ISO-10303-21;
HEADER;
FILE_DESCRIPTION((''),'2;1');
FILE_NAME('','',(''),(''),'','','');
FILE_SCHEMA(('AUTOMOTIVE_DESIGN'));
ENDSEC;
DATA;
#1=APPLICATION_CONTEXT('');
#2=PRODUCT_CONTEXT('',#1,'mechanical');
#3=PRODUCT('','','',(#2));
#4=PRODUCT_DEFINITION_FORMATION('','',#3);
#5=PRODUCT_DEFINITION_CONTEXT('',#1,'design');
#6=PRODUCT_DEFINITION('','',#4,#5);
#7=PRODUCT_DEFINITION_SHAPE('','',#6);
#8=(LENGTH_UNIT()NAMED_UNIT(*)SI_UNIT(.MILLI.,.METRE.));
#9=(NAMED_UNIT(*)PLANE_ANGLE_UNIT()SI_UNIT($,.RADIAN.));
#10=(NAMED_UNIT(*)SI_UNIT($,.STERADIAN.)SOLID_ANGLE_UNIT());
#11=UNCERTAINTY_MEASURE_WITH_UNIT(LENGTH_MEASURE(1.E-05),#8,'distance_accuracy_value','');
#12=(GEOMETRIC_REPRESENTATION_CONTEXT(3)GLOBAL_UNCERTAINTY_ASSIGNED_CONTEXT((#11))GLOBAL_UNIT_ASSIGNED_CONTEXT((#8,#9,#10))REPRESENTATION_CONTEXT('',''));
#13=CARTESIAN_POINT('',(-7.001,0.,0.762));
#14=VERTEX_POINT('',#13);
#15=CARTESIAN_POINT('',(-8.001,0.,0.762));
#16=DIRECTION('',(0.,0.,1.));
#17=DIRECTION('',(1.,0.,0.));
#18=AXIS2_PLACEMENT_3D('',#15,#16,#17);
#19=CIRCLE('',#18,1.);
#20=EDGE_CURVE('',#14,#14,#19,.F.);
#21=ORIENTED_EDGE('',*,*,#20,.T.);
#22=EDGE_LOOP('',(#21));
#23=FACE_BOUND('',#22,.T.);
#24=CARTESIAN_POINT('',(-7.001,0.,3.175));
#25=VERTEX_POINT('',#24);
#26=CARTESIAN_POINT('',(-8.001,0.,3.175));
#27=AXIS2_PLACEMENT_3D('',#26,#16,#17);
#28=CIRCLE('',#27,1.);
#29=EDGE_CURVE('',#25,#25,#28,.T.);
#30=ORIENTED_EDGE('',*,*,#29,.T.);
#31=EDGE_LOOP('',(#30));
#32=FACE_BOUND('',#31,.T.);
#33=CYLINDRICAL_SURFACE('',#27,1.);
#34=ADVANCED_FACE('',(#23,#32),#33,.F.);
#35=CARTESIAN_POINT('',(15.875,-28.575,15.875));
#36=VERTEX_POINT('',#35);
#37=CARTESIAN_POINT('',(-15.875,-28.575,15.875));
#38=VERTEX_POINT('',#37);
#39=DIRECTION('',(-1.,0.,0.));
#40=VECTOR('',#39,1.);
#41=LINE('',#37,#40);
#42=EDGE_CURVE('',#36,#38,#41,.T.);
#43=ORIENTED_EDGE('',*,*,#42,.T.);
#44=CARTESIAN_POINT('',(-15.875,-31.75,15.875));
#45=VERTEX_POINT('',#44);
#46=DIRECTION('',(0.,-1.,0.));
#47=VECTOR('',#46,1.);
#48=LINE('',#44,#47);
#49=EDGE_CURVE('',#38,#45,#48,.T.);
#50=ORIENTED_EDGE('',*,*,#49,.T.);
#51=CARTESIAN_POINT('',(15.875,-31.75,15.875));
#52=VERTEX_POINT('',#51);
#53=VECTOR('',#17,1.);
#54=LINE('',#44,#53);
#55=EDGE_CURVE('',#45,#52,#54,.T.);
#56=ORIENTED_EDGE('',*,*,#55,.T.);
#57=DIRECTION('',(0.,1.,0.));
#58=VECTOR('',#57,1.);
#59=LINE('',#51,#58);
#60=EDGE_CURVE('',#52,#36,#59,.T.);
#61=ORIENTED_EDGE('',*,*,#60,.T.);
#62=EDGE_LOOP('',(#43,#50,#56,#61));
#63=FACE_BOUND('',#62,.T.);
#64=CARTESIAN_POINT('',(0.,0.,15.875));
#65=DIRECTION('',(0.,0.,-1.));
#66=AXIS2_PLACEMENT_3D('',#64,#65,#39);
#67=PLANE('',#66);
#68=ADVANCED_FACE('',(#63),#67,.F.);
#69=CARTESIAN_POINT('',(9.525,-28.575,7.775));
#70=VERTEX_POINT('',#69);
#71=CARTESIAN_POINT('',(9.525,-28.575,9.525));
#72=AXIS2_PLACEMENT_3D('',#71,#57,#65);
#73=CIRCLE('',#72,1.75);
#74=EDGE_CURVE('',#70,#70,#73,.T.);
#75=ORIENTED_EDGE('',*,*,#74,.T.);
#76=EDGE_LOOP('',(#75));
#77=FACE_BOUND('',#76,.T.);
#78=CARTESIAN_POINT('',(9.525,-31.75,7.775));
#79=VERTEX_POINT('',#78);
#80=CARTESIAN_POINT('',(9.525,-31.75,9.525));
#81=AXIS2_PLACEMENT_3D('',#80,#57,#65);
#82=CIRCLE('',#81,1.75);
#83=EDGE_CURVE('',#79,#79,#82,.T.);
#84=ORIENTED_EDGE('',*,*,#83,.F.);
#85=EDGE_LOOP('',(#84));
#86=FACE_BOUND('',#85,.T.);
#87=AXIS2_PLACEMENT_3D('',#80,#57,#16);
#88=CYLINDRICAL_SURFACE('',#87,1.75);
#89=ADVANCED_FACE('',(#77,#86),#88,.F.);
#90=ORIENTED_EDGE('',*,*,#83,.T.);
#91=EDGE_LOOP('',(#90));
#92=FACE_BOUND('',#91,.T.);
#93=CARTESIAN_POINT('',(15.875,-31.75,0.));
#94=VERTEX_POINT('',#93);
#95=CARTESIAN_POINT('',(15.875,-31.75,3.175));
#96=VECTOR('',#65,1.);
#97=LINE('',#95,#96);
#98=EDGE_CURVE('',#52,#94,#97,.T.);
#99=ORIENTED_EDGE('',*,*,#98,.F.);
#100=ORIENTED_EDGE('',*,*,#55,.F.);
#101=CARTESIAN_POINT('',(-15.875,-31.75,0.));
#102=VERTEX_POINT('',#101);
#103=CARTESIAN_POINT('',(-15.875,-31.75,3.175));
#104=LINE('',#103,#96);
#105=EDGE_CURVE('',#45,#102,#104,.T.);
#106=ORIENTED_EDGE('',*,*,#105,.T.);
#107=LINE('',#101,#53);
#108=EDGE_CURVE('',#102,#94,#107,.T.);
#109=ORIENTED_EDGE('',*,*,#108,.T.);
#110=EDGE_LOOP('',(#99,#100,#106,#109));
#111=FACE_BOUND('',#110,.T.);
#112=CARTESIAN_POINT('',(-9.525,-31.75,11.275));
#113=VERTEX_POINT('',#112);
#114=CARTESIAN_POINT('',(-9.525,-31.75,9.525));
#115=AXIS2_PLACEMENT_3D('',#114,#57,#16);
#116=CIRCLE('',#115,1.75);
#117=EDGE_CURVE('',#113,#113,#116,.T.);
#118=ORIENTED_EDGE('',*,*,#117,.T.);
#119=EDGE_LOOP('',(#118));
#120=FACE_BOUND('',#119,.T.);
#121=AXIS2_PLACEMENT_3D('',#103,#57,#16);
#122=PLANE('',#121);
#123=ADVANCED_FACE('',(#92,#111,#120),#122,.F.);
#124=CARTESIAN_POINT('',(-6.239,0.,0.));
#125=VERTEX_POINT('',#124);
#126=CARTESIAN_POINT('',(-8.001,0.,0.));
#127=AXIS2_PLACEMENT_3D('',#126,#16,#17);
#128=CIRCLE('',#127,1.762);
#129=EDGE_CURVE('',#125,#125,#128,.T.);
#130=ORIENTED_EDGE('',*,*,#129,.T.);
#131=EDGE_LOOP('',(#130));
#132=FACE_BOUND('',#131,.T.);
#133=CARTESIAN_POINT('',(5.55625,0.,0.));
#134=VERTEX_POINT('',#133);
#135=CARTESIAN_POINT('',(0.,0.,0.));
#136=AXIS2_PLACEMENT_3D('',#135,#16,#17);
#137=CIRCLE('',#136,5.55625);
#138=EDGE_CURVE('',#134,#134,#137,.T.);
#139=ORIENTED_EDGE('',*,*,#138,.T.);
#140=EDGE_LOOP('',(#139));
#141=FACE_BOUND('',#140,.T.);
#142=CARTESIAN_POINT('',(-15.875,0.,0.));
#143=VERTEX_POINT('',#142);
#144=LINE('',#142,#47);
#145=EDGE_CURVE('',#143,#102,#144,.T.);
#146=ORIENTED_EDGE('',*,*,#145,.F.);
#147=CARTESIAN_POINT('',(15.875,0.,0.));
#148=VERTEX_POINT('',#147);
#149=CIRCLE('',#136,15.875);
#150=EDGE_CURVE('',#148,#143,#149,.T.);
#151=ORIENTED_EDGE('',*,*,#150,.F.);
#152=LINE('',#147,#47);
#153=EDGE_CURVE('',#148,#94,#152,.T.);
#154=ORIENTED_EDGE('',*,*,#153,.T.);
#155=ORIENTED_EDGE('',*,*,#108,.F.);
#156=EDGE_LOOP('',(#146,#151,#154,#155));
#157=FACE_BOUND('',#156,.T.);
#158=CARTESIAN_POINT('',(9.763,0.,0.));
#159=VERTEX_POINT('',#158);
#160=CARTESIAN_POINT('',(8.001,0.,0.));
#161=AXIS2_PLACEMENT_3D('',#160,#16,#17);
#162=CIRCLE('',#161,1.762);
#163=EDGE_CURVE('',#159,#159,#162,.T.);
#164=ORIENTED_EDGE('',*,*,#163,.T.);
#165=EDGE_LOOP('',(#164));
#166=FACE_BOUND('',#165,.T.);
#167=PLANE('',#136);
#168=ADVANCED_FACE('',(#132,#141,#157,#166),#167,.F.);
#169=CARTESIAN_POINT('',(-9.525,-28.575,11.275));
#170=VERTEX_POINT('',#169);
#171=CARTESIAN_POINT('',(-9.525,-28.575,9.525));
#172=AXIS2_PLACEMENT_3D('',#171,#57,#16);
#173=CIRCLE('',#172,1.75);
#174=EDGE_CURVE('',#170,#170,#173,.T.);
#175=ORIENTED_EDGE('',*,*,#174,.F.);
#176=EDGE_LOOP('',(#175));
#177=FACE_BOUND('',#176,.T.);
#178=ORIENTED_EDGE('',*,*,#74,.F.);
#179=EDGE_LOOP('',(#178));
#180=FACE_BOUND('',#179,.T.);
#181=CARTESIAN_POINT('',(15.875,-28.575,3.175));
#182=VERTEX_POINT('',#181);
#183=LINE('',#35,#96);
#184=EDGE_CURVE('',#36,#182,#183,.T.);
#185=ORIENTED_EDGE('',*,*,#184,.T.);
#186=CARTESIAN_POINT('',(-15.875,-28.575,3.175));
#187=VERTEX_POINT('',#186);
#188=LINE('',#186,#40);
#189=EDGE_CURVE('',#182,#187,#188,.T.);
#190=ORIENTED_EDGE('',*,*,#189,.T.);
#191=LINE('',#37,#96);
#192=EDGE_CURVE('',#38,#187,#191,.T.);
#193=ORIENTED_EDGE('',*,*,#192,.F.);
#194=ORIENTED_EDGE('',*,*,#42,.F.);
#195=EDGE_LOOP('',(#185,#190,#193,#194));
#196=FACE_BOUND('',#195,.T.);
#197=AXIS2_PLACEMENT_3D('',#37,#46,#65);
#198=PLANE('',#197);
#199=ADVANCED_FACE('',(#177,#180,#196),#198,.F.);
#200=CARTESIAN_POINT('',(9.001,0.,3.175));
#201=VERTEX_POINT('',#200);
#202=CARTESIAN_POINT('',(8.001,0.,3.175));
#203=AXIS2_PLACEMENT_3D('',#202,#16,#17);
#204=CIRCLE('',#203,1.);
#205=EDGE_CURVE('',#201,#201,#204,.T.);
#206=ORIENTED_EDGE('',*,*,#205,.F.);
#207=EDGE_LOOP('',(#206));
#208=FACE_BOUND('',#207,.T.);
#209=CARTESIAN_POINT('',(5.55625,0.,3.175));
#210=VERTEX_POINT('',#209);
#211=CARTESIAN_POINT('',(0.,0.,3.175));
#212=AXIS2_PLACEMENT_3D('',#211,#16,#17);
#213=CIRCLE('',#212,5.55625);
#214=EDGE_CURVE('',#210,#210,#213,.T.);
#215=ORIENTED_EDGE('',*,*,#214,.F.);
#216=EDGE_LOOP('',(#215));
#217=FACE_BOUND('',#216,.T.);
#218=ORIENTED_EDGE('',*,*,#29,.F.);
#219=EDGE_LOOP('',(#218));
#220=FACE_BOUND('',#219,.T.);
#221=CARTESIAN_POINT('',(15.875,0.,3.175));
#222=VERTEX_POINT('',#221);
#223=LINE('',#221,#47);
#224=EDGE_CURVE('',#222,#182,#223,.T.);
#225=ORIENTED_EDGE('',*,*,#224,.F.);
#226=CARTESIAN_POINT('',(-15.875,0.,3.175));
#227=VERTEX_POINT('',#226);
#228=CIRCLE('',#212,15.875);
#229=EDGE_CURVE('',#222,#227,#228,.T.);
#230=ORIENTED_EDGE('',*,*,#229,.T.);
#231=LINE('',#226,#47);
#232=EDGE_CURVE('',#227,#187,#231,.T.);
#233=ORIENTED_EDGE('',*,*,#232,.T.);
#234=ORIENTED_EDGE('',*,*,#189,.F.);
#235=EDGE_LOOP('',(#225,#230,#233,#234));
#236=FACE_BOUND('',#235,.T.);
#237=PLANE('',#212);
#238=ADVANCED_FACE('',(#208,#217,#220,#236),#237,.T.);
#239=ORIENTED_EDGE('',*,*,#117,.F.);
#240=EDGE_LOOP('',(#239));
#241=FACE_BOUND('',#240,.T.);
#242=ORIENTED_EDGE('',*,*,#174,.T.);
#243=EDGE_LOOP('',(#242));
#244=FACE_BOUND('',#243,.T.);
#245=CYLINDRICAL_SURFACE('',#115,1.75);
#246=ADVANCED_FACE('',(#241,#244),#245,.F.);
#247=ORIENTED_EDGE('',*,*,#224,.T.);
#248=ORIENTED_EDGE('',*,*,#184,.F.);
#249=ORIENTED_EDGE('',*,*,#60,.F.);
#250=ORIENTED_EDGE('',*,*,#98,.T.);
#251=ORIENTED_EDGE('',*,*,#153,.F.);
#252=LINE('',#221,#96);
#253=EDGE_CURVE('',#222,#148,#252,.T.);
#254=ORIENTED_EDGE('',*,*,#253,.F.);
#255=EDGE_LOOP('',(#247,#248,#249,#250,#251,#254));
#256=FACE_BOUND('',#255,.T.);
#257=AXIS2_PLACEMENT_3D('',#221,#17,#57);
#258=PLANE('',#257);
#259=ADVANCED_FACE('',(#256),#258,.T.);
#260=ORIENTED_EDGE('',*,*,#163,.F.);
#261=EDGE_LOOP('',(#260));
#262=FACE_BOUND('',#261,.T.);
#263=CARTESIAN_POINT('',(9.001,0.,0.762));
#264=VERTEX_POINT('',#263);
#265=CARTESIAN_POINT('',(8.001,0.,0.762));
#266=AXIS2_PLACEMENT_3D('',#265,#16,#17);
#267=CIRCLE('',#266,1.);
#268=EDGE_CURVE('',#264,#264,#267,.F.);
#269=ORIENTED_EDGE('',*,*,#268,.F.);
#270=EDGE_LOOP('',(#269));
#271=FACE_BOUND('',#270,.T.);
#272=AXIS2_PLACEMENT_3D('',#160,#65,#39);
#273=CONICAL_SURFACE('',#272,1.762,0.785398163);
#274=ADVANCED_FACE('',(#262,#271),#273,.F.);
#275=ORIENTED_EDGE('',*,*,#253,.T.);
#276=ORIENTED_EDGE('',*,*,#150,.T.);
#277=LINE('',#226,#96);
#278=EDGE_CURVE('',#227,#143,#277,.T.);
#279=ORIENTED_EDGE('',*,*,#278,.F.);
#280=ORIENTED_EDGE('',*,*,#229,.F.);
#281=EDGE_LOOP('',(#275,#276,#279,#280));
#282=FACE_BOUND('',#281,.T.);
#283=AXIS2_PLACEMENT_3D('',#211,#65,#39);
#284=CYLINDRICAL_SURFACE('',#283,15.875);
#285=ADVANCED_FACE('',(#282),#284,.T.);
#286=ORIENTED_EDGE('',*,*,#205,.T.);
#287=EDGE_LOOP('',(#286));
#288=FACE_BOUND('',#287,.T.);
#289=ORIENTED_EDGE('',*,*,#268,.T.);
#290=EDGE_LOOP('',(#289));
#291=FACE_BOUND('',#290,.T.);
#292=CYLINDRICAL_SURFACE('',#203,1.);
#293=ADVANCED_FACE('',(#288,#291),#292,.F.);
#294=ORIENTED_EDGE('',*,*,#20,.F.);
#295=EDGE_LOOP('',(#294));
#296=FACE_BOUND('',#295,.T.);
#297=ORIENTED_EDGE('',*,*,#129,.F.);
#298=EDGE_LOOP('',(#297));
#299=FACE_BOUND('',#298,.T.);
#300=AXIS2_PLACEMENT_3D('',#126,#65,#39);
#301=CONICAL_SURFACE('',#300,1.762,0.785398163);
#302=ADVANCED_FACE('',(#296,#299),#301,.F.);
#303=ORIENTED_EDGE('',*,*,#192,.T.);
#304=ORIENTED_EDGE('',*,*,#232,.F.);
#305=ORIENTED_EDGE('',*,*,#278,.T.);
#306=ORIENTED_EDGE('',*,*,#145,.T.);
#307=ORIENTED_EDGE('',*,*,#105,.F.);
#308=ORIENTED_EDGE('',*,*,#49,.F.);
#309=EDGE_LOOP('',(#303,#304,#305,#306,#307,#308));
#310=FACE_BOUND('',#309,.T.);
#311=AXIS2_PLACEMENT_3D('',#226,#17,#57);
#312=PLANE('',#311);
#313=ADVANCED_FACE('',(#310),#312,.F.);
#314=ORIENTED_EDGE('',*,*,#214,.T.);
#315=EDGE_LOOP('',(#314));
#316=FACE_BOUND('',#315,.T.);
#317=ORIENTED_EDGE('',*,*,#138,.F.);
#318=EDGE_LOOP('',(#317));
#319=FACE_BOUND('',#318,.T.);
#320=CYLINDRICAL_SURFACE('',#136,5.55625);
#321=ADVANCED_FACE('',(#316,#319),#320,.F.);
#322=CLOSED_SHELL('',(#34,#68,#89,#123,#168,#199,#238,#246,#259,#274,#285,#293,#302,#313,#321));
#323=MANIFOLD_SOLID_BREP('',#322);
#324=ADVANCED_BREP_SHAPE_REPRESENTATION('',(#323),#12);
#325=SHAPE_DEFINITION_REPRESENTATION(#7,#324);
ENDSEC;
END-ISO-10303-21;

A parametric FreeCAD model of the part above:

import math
import FreeCAD as App
import Part
import Sketcher
Q = App.Units.Quantity


def edges_at(feature, points):
    """Names of the edges that pass closest to the given points."""
    edges = feature.Shape.Edges
    near = lambda p: min(range(len(edges)), key=lambda i: edges[i].distToShape(Part.Vertex(*p))[0])
    return sorted({f"Edge{near(p) + 1}" for p in points})

doc = App.newDocument("Part")
body = doc.addObject("PartDesign::Body", "Body")

# Sketch on XY plane
sketch1 = body.newObject("Sketcher::SketchObject", "Sketch")
sketch1.AttachmentSupport = (doc.getObject("XY_Plane"), [""])
sketch1.MapMode = "FlatFace"
sketch1.addGeometry(Part.ArcOfCircle(Part.Circle(App.Vector(0, 0, 0), App.Vector(0, 0, 1), 16), math.radians(0), math.radians(180)), False)
sketch1.addGeometry(Part.LineSegment(App.Vector(-16, 0, 0), App.Vector(-16, -32, 0)), False)
sketch1.addGeometry(Part.LineSegment(App.Vector(-16, -32, 0), App.Vector(16, -32, 0)), False)
sketch1.addGeometry(Part.LineSegment(App.Vector(16, -32, 0), App.Vector(16, 0, 0)), False)
sketch1.addConstraint(Sketcher.Constraint("Tangent", 0, 2, 1, 1))
sketch1.addConstraint(Sketcher.Constraint("Coincident", 1, 2, 2, 1))
sketch1.addConstraint(Sketcher.Constraint("Coincident", 2, 2, 3, 1))
sketch1.addConstraint(Sketcher.Constraint("Tangent", 3, 2, 0, 1))
sketch1.addConstraint(Sketcher.Constraint("Vertical", 1))
sketch1.addConstraint(Sketcher.Constraint("Horizontal", 2))
sketch1.addConstraint(Sketcher.Constraint("Vertical", 3))
sketch1.addConstraint(Sketcher.Constraint("Coincident", 0, 3, -1, 1))
sketch1.addConstraint(Sketcher.Constraint("Equal", 2, 1))
sketch1.addConstraint(Sketcher.Constraint("Radius", 0, Q("0.625 in")))
pad1 = body.newObject("PartDesign::Pad", "Pad")
pad1.Profile = sketch1
pad1.Length = Q("0.125 in")

# Sketch on XY plane
sketch2 = body.newObject("Sketcher::SketchObject", "Sketch001")
sketch2.AttachmentSupport = (doc.getObject("XY_Plane"), [""])
sketch2.MapMode = "FlatFace"
sketch2.AttachmentOffset = App.Placement(App.Vector(0, 0, 0.125 * 25.4), App.Rotation())
sketch2.addGeometry(Part.Circle(App.Vector(0, 0, 0), App.Vector(0, 0, 1), 6), False)
sketch2.addConstraint(Sketcher.Constraint("Coincident", 0, 3, -1, 1))
sketch2.addConstraint(Sketcher.Constraint("Diameter", 0, Q("0.4375 in")))
pocket1 = body.newObject("PartDesign::Pocket", "Pocket")
pocket1.Profile = sketch2
pocket1.Type = "ThroughAll"

# Sketch on XY plane
sketch3 = body.newObject("Sketcher::SketchObject", "Sketch002")
sketch3.AttachmentSupport = (doc.getObject("XY_Plane"), [""])
sketch3.MapMode = "FlatFace"
sketch3.AttachmentOffset = App.Placement(App.Vector(0, 0, 0.125 * 25.4), App.Rotation())
sketch3.addGeometry(Part.LineSegment(App.Vector(-15.9, -28.6, 0), App.Vector(-15.9, -31.8, 0)), False)
sketch3.addGeometry(Part.LineSegment(App.Vector(-15.9, -31.8, 0), App.Vector(15.9, -31.8, 0)), False)
sketch3.addGeometry(Part.LineSegment(App.Vector(15.9, -31.8, 0), App.Vector(15.9, -28.6, 0)), False)
sketch3.addGeometry(Part.LineSegment(App.Vector(15.9, -28.6, 0), App.Vector(-15.9, -28.6, 0)), False)
sketch3.addConstraint(Sketcher.Constraint("Coincident", 0, 2, 1, 1))
sketch3.addConstraint(Sketcher.Constraint("Coincident", 1, 2, 2, 1))
sketch3.addConstraint(Sketcher.Constraint("Coincident", 2, 2, 3, 1))
sketch3.addConstraint(Sketcher.Constraint("Coincident", 3, 2, 0, 1))
sketch3.addConstraint(Sketcher.Constraint("Vertical", 0))
sketch3.addConstraint(Sketcher.Constraint("Horizontal", 1))
sketch3.addConstraint(Sketcher.Constraint("Vertical", 2))
sketch3.addConstraint(Sketcher.Constraint("Horizontal", 3))
sketch3.addConstraint(Sketcher.Constraint("DistanceX", 1, 1, 1, 2, Q("1.25 in")))
sketch3.addConstraint(Sketcher.Constraint("DistanceY", 0, 2, 0, 1, Q("0.125 in")))
sketch3.addConstraint(Sketcher.Constraint("DistanceY", 0, 2, -1, 1, Q("1.25 in")))
sketch3.addConstraint(Sketcher.Constraint("DistanceX", 0, 2, -1, 1, Q("0.625 in")))
pad2 = body.newObject("PartDesign::Pad", "Pad001")
pad2.Profile = sketch3
pad2.Length = Q("0.5 in")

# Sketch on XZ plane
sketch4 = body.newObject("Sketcher::SketchObject", "Sketch003")
sketch4.AttachmentSupport = (doc.getObject("XZ_Plane"), [""])
sketch4.MapMode = "FlatFace"
sketch4.AttachmentOffset = App.Placement(App.Vector(0, 0, 1.125 * 25.4), App.Rotation())
sketch4.addGeometry(Part.Circle(App.Vector(-9.5, 9.5, 0), App.Vector(0, 0, 1), 1.8), False)
sketch4.addGeometry(Part.Circle(App.Vector(9.5, 9.5, 0), App.Vector(0, 0, 1), 1.8), False)
sketch4.addConstraint(Sketcher.Constraint("Equal", 0, 1))
sketch4.addConstraint(Sketcher.Constraint("Symmetric", 0, 3, 1, 3, -2))
sketch4.addConstraint(Sketcher.Constraint("Diameter", 0, Q("3.5 mm")))
sketch4.addConstraint(Sketcher.Constraint("DistanceX", 0, 3, 1, 3, Q("0.75 in")))
sketch4.addConstraint(Sketcher.Constraint("DistanceY", -1, 1, 0, 3, Q("0.375 in")))
pocket2 = body.newObject("PartDesign::Pocket", "Pocket001")
pocket2.Profile = sketch4
pocket2.Type = "ThroughAll"
pocket2.Reversed = True

# Sketch on XY plane
sketch5 = body.newObject("Sketcher::SketchObject", "Sketch004")
sketch5.AttachmentSupport = (doc.getObject("XY_Plane"), [""])
sketch5.MapMode = "FlatFace"
sketch5.AttachmentOffset = App.Placement(App.Vector(0, 0, 0.125 * 25.4), App.Rotation())
sketch5.addGeometry(Part.Circle(App.Vector(-8, 0, 0), App.Vector(0, 0, 1), 1), False)
sketch5.addGeometry(Part.Circle(App.Vector(8, 0, 0), App.Vector(0, 0, 1), 1), False)
sketch5.addConstraint(Sketcher.Constraint("Equal", 0, 1))
sketch5.addConstraint(Sketcher.Constraint("Symmetric", 0, 3, 1, 3, -1, 1))
sketch5.addConstraint(Sketcher.Constraint("PointOnObject", 0, 3, -1))
sketch5.addConstraint(Sketcher.Constraint("Diameter", 0, Q("2 mm")))
sketch5.addConstraint(Sketcher.Constraint("DistanceX", 0, 3, 1, 3, Q("0.63 in")))
doc.recompute()
hole = body.newObject("PartDesign::Hole", "Hole")
hole.Profile = sketch5
hole.ThreadType = "None"
hole.Diameter = 2
hole.DepthType = "Dimension"
hole.Depth = Q("0.5 in")
hole.DrillPoint = "Angled"
hole.DrillPointAngle = 118
doc.recompute()

chamfer = body.newObject("PartDesign::Chamfer", "Chamfer")
chamfer.Base = (hole, edges_at(hole, [(9.001, 0, 0), (-7.001, 0, 0)]))
chamfer.Size = Q("0.03 in")

doc.recompute()
